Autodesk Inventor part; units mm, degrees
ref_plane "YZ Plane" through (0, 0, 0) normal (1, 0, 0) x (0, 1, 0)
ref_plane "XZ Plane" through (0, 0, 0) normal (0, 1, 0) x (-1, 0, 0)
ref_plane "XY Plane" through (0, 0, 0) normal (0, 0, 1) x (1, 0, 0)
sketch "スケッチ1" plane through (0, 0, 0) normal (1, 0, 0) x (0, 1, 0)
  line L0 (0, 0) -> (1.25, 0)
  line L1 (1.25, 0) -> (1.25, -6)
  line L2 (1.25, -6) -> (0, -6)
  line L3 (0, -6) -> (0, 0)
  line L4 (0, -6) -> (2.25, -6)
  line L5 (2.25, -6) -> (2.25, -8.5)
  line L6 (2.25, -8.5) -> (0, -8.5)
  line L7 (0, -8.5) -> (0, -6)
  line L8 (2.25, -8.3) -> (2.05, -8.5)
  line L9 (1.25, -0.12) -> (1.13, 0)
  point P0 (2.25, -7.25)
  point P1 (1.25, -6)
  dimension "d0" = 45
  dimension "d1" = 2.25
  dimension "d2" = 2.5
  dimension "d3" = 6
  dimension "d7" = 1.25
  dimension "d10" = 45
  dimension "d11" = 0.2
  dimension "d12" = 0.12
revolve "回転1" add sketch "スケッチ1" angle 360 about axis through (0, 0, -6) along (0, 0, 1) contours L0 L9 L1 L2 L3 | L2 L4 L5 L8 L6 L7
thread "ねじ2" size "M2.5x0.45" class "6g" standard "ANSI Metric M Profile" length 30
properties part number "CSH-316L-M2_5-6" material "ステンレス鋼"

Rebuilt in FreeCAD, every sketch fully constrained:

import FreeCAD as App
import Part
import Sketcher
Q = App.Units.Quantity

doc = App.newDocument("Part")
body = doc.addObject("PartDesign::Body", "Body")

# Sketch on YZ plane
sketch1 = body.newObject("Sketcher::SketchObject", "Sketch")
sketch1.AttachmentSupport = (doc.getObject("YZ_Plane"), [""])
sketch1.MapMode = "FlatFace"
sketch1.addGeometry([
    Part.LineSegment(App.Vector(1.13, 0, 0), App.Vector(0, 0, 0)),  # 0
    Part.LineSegment(App.Vector(0, 0, 0), App.Vector(0, -8.5, 0)),  # 1
    Part.LineSegment(App.Vector(0, -8.5, 0), App.Vector(2.05, -8.5, 0)),  # 2
    Part.LineSegment(App.Vector(2.05, -8.5, 0), App.Vector(2.25, -8.3, 0)),  # 3
    Part.LineSegment(App.Vector(2.25, -8.3, 0), App.Vector(2.25, -6, 0)),  # 4
    Part.LineSegment(App.Vector(2.25, -6, 0), App.Vector(1.25, -6, 0)),  # 5
    Part.LineSegment(App.Vector(1.25, -6, 0), App.Vector(1.25, -0.12, 0)),  # 6
    Part.LineSegment(App.Vector(1.25, -0.12, 0), App.Vector(1.13, 0, 0)),  # 7
], False)
sketch1.addConstraint([
    Sketcher.Constraint("Coincident", 0, 2, 1, 1),
    Sketcher.Constraint("Coincident", 1, 2, 2, 1),
    Sketcher.Constraint("Coincident", 2, 2, 3, 1),
    Sketcher.Constraint("Coincident", 3, 2, 4, 1),
    Sketcher.Constraint("Coincident", 4, 2, 5, 1),
    Sketcher.Constraint("Coincident", 5, 2, 6, 1),
    Sketcher.Constraint("Coincident", 6, 2, 7, 1),
    Sketcher.Constraint("Coincident", 7, 2, 0, 1),
    Sketcher.Constraint("Horizontal", 0),
    Sketcher.Constraint("Vertical", 1),
    Sketcher.Constraint("Horizontal", 2),
    Sketcher.Constraint("Vertical", 4),
    Sketcher.Constraint("Horizontal", 5),
    Sketcher.Constraint("Vertical", 6),
    Sketcher.Constraint("Coincident", 0, 2, -1, 1),
    Sketcher.Constraint("Perpendicular", 3, 7),
    Sketcher.Constraint("Angle", 3, Q("45 deg")),
    Sketcher.Constraint("DistanceY", 4, 2, -1, 1, 6.0),
    Sketcher.Constraint("DistanceX", 2, 2, 3, 2, 0.2),
    Sketcher.Constraint("DistanceY", 2, 2, 4, 2, 2.5),
    Sketcher.Constraint("DistanceX", 5, 2, 5, 1, 1.0),
    Sketcher.Constraint("DistanceX", -1, 1, 3, 2, 2.25),
    Sketcher.Constraint("DistanceY", 6, 2, -1, 1, 0.12),
])
revolution = body.newObject("PartDesign::Revolution", "Revolution")
revolution.Profile = sketch1
revolution.ReferenceAxis = (sketch1, ["V_Axis"])
revolution.Angle = 360

doc.recompute()
